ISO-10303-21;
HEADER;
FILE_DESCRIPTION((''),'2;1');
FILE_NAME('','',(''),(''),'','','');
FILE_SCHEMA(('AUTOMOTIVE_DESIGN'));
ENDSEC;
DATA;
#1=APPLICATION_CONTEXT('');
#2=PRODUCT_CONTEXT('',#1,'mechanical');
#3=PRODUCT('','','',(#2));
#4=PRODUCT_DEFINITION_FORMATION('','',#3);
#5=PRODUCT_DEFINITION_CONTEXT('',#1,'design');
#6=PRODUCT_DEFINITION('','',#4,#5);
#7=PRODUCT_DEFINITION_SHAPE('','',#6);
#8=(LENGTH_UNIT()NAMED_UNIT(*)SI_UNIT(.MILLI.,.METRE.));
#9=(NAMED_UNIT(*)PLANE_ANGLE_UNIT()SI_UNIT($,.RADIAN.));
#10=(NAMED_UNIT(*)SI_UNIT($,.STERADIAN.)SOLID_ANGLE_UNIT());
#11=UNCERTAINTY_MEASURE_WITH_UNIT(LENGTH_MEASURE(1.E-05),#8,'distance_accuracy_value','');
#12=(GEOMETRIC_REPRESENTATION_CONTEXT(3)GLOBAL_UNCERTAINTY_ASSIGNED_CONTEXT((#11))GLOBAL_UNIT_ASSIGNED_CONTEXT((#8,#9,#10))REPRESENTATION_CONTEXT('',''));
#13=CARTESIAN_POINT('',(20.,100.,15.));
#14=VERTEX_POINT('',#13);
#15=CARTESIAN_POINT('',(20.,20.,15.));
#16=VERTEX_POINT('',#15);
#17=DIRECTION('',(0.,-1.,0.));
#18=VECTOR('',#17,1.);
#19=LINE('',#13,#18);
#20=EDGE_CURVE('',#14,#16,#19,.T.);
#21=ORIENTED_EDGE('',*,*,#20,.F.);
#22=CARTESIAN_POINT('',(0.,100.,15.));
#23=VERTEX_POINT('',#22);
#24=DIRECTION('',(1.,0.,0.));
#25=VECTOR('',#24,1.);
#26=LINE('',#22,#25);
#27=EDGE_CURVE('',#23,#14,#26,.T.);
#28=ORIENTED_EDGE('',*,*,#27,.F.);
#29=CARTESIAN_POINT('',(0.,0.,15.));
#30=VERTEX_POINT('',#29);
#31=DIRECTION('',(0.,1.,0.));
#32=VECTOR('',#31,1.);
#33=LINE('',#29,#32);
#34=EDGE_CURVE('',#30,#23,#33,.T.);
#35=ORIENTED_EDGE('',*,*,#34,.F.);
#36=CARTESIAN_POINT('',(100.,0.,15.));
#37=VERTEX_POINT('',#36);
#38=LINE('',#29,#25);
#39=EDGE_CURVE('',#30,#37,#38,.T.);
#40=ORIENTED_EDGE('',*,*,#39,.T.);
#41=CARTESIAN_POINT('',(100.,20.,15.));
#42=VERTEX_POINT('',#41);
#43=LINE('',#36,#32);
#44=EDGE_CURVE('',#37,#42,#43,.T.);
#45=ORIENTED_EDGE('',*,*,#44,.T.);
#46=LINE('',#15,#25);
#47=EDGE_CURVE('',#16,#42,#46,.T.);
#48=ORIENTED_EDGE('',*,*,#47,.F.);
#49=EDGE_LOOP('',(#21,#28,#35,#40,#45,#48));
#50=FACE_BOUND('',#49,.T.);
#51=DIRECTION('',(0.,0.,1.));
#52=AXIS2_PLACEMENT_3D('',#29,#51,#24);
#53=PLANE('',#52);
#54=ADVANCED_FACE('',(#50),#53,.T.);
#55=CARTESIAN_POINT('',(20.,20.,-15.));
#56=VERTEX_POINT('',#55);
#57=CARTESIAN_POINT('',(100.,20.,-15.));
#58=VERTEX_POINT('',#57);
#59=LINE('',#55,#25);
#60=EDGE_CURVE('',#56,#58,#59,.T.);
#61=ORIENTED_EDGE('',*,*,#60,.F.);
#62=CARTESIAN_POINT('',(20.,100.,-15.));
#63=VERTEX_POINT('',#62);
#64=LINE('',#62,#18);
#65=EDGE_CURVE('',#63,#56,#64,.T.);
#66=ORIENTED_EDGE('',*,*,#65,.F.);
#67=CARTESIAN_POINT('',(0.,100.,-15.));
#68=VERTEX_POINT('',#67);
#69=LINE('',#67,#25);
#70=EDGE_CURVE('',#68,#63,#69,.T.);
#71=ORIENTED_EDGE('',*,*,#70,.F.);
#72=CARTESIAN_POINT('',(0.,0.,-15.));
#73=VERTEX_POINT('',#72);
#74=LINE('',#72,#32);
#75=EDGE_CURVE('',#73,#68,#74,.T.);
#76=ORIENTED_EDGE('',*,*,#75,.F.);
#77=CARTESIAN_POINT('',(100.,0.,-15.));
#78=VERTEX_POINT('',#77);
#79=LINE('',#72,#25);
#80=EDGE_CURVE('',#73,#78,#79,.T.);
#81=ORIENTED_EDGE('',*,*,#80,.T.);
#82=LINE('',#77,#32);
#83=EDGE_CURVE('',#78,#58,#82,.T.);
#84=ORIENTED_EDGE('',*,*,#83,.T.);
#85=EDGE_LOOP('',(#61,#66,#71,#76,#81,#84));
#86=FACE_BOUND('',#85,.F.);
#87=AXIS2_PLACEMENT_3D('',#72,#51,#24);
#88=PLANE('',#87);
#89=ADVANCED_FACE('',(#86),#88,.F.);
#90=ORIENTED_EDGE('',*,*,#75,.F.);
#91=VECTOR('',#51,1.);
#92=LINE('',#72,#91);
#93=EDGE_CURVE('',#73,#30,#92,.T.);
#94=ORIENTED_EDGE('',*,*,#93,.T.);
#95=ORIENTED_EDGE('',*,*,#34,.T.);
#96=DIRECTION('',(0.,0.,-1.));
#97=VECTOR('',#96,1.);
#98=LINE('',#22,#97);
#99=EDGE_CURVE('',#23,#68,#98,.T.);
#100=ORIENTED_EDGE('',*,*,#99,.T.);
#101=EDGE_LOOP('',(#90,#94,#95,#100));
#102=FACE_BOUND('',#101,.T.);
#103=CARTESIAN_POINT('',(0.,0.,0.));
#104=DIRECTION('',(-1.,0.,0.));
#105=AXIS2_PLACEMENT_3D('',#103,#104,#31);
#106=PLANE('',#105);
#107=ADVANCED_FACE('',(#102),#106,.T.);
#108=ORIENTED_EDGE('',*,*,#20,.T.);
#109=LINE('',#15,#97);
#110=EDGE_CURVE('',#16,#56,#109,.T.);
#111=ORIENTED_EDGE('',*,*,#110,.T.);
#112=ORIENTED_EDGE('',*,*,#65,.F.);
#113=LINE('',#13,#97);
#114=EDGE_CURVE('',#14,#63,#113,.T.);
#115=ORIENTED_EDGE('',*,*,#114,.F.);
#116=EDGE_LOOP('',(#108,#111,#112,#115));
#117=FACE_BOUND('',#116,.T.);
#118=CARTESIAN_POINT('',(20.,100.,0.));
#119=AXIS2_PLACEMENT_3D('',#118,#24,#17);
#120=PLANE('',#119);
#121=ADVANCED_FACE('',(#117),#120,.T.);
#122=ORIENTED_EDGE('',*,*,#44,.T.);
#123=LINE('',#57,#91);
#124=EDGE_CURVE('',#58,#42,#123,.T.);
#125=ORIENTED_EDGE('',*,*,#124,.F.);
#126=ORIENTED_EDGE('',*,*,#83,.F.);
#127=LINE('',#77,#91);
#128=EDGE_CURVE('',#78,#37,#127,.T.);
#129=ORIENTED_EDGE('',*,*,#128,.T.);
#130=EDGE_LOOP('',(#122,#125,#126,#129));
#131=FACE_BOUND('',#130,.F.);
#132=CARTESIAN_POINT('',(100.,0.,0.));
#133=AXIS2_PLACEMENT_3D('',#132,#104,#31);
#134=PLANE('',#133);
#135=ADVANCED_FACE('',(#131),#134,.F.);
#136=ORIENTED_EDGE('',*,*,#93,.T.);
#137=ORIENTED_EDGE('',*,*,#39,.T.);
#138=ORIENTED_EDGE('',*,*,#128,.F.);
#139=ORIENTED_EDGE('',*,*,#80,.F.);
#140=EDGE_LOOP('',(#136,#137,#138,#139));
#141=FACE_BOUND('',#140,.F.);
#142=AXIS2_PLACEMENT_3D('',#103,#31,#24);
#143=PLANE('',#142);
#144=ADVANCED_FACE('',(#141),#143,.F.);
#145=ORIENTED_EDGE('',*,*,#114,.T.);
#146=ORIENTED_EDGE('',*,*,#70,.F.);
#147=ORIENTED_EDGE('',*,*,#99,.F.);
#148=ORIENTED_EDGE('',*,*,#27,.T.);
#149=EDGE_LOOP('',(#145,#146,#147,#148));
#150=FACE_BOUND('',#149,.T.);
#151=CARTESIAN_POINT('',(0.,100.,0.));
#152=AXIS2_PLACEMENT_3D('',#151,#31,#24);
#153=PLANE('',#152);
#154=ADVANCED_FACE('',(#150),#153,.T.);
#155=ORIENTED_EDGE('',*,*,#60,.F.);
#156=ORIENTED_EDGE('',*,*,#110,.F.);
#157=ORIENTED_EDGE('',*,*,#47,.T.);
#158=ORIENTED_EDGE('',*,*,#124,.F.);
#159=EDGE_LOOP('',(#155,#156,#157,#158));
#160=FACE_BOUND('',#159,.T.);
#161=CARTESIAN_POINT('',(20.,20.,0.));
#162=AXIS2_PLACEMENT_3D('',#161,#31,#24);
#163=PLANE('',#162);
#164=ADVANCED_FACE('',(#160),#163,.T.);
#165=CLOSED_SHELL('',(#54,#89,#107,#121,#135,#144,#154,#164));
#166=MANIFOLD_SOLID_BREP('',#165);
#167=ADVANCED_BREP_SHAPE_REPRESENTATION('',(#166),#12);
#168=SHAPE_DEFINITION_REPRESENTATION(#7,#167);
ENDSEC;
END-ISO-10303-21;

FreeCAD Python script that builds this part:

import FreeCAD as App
import Part
import Sketcher


def add_polygon(sketch, points):
    """Adds a closed chain of lines whose ends are joined by coincident constraints."""
    first, n = sketch.GeometryCount, len(points)
    for a, b in zip(points, points[1:] + points[:1]):
        sketch.addGeometry(Part.LineSegment(App.Vector(*a, 0), App.Vector(*b, 0)), False)
    for i in range(n):
        sketch.addConstraint(Sketcher.Constraint("Coincident", first + i, 2, first + (i + 1) % n, 1))

doc = App.newDocument("Part")
body = doc.addObject("PartDesign::Body", "Body")

# Sketch on XY plane
sketch1 = body.newObject("Sketcher::SketchObject", "Sketch")
sketch1.AttachmentSupport = (doc.getObject("XY_Plane"), [""])
sketch1.MapMode = "FlatFace"
add_polygon(sketch1, [(0, 100), (0, 0), (100, 0), (100, 20), (20, 20), (20, 100)])  # lines 0-5
sketch1.addConstraint([
    Sketcher.Constraint("Vertical", 0),
    Sketcher.Constraint("Horizontal", 1),
    Sketcher.Constraint("Vertical", 2),
    Sketcher.Constraint("Horizontal", 3),
    Sketcher.Constraint("Vertical", 4),
    Sketcher.Constraint("Horizontal", 5),
    Sketcher.Constraint("Coincident", 0, 2, -1, 1),
    Sketcher.Constraint("Equal", 1, 0),
    Sketcher.Constraint("Equal", 5, 2),
    Sketcher.Constraint("DistanceX", 1, 1, 1, 2, 100.0),
    Sketcher.Constraint("DistanceX", 5, 2, 5, 1, 20.0),
])
pad1 = body.newObject("PartDesign::Pad", "Pad")
pad1.Profile = sketch1
pad1.Length = 30
pad1.Midplane = True

doc.recompute()
